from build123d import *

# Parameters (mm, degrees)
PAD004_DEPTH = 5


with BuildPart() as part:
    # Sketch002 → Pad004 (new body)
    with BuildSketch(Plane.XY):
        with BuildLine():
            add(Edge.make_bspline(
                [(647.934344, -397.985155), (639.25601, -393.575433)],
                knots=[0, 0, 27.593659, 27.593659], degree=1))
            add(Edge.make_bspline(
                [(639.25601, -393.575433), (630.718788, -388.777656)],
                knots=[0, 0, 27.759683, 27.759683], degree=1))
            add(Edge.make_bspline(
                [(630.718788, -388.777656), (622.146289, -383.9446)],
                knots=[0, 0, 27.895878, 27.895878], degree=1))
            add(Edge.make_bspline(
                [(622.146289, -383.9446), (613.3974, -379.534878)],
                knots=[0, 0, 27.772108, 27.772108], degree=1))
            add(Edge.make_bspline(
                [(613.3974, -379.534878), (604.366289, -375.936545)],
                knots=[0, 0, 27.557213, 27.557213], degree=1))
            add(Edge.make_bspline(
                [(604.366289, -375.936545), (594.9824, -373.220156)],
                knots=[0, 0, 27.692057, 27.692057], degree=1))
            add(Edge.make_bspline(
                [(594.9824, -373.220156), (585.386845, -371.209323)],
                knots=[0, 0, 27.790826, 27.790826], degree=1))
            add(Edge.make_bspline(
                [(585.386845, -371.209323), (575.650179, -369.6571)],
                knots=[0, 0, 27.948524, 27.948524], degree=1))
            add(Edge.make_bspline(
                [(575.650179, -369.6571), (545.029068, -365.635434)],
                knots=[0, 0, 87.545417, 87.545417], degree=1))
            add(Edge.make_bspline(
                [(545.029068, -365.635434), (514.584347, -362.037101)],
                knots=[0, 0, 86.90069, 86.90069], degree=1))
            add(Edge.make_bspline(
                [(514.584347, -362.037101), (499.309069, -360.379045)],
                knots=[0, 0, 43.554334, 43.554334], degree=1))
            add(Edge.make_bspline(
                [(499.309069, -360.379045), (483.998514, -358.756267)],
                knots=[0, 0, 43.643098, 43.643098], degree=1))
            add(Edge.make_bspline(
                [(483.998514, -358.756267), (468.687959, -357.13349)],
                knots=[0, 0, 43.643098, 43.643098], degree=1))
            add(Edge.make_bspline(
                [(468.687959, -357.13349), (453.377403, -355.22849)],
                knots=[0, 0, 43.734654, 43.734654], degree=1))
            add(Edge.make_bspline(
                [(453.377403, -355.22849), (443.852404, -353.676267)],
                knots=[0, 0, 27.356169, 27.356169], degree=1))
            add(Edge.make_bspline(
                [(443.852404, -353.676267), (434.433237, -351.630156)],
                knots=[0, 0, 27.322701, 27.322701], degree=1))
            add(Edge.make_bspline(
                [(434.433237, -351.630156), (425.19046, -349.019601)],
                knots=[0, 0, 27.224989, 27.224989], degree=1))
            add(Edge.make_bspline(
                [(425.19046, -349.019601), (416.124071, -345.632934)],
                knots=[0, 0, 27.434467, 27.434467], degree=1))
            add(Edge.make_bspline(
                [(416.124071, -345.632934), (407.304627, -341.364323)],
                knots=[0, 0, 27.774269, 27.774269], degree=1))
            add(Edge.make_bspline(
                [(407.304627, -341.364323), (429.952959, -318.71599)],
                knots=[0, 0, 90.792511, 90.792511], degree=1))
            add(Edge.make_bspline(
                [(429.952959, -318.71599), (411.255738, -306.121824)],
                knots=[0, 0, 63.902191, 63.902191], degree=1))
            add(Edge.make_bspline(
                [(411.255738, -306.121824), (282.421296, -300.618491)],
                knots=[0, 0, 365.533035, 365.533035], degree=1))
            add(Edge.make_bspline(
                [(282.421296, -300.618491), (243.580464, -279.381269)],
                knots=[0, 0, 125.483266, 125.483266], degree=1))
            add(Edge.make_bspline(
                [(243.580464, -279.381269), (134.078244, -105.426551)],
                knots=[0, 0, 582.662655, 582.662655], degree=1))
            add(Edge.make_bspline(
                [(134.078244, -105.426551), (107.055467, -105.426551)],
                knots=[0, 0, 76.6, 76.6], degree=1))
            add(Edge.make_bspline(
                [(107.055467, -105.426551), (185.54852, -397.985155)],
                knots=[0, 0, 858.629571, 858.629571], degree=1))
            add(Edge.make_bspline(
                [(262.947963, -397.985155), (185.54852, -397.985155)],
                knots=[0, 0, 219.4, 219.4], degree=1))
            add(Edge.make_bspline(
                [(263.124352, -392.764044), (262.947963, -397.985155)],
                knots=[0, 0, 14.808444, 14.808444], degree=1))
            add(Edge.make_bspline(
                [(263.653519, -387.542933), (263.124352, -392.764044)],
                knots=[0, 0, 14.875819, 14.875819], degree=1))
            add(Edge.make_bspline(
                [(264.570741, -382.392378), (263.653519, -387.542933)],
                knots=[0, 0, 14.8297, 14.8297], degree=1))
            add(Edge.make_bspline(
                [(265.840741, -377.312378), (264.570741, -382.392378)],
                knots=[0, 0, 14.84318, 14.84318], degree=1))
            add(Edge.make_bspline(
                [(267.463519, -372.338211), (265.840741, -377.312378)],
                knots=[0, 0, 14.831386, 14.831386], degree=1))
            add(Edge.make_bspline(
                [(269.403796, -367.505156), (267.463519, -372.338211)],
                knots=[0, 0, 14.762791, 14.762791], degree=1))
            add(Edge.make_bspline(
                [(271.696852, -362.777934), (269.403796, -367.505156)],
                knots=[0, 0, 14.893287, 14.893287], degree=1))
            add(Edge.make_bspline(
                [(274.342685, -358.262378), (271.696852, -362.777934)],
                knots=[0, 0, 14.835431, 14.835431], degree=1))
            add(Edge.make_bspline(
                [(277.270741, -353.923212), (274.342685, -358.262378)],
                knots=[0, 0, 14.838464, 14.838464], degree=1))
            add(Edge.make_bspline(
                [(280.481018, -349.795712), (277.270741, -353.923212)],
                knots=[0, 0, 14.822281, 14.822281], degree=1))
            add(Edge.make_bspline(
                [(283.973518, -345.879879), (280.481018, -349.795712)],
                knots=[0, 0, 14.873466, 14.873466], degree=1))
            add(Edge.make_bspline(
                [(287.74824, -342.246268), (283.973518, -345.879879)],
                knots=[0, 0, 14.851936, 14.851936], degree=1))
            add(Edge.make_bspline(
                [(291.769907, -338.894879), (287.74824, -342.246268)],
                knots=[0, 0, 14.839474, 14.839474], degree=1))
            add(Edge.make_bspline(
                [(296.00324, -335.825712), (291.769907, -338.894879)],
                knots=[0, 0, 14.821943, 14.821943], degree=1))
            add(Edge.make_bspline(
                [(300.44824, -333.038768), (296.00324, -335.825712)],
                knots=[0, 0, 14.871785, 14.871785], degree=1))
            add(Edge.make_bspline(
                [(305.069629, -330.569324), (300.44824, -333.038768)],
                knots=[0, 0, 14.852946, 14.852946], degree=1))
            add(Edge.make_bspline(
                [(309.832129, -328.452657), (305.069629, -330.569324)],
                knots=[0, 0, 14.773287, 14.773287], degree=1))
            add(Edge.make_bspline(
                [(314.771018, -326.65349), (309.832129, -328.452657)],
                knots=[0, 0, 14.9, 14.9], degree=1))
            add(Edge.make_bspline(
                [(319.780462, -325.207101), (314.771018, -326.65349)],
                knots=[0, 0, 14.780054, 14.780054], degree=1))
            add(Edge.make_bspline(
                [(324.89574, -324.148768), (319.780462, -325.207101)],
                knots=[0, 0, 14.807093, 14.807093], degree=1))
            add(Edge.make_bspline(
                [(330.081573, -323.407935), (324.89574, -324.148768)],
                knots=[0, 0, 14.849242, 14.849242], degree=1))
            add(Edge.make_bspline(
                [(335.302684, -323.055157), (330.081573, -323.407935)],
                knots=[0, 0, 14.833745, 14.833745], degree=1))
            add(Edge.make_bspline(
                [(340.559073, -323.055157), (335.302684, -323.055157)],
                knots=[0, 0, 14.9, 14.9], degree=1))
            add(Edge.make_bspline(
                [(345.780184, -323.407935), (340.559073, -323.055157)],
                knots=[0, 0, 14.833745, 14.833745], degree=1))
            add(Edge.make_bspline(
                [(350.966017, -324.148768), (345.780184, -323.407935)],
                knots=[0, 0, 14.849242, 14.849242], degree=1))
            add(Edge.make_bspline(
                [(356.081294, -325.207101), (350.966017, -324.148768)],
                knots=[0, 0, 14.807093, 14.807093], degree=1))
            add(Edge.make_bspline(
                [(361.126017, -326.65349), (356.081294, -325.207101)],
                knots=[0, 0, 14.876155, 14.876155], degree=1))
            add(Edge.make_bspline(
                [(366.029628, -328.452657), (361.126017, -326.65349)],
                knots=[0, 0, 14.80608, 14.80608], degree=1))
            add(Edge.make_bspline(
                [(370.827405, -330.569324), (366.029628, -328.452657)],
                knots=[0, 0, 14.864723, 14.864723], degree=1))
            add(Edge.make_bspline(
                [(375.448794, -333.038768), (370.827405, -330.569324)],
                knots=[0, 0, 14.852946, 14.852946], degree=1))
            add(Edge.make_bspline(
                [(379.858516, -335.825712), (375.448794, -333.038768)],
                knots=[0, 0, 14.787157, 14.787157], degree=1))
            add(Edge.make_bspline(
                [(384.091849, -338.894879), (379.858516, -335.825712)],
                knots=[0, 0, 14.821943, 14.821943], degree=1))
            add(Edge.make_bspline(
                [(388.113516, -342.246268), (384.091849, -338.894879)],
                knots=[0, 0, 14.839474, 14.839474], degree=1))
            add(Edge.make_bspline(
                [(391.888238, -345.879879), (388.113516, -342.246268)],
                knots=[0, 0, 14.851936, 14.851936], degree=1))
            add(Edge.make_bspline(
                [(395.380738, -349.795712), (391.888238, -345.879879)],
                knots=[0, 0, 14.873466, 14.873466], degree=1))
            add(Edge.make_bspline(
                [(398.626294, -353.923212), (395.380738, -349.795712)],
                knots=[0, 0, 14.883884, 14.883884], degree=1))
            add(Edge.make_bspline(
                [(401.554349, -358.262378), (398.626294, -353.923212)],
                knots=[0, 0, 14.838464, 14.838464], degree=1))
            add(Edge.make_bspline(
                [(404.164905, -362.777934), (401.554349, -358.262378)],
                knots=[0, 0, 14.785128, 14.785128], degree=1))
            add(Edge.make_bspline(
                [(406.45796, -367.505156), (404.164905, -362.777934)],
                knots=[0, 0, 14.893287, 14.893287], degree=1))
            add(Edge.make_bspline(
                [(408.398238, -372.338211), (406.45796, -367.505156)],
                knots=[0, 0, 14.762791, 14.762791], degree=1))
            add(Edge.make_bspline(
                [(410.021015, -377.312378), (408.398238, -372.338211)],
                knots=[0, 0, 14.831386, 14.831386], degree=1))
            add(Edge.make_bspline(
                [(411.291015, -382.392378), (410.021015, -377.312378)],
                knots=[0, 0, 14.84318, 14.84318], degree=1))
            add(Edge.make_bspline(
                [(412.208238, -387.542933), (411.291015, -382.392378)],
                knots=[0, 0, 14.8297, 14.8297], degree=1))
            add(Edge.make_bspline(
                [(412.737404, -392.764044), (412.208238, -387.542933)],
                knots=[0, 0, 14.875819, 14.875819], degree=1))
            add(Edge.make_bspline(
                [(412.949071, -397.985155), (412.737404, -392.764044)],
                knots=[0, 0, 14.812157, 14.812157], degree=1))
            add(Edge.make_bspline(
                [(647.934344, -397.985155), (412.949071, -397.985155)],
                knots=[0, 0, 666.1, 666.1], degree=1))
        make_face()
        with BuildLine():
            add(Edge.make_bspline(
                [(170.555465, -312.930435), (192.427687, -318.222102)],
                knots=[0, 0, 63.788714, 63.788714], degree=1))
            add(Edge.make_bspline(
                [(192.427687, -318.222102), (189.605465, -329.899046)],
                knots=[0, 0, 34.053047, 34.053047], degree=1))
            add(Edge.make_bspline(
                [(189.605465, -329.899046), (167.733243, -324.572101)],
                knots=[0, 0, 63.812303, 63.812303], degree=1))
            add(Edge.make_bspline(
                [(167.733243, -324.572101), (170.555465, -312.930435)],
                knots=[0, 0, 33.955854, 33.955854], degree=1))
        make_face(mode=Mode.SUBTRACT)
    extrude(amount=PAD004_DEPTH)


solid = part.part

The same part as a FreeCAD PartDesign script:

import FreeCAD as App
import Part
import Sketcher

doc = App.newDocument("Part")
body = doc.addObject("PartDesign::Body", "Body")

# Sketch on XY plane
sketch1 = doc.addObject("Sketcher::SketchObject", "Sketch")
body.addObject(sketch1)
sketch1.AttachmentSupport = (doc.XY_Plane, [""])
sketch1.MapMode = "FlatFace"
sketch1.addGeometry([
    Part.BSplineCurve([App.Vector(647.934344, -397.985155, 0), App.Vector(639.25601, -393.575433, 0)], [2, 2], [0, 27.593659], False, 1, [1, 1], False),  # 0
    Part.BSplineCurve([App.Vector(639.25601, -393.575433, 0), App.Vector(630.718788, -388.777656, 0)], [2, 2], [0, 27.759683], False, 1, [1, 1], False),  # 1
    Part.BSplineCurve([App.Vector(630.718788, -388.777656, 0), App.Vector(622.146289, -383.9446, 0)], [2, 2], [0, 27.895878], False, 1, [1, 1], False),  # 2
    Part.BSplineCurve([App.Vector(622.146289, -383.9446, 0), App.Vector(613.3974, -379.534878, 0)], [2, 2], [0, 27.772108], False, 1, [1, 1], False),  # 3
    Part.BSplineCurve([App.Vector(613.3974, -379.534878, 0), App.Vector(604.366289, -375.936545, 0)], [2, 2], [0, 27.557213], False, 1, [1, 1], False),  # 4
    Part.BSplineCurve([App.Vector(604.366289, -375.936545, 0), App.Vector(594.9824, -373.220156, 0)], [2, 2], [0, 27.692057], False, 1, [1, 1], False),  # 5
    Part.BSplineCurve([App.Vector(594.9824, -373.220156, 0), App.Vector(585.386845, -371.209323, 0)], [2, 2], [0, 27.790826], False, 1, [1, 1], False),  # 6
    Part.BSplineCurve([App.Vector(585.386845, -371.209323, 0), App.Vector(575.650179, -369.6571, 0)], [2, 2], [0, 27.948524], False, 1, [1, 1], False),  # 7
    Part.BSplineCurve([App.Vector(575.650179, -369.6571, 0), App.Vector(545.029068, -365.635434, 0)], [2, 2], [0, 87.545417], False, 1, [1, 1], False),  # 8
    Part.BSplineCurve([App.Vector(545.029068, -365.635434, 0), App.Vector(514.584347, -362.037101, 0)], [2, 2], [0, 86.90069], False, 1, [1, 1], False),  # 9
    Part.BSplineCurve([App.Vector(514.584347, -362.037101, 0), App.Vector(499.309069, -360.379045, 0)], [2, 2], [0, 43.554334], False, 1, [1, 1], False),  # 10
    Part.BSplineCurve([App.Vector(499.309069, -360.379045, 0), App.Vector(483.998514, -358.756267, 0)], [2, 2], [0, 43.643098], False, 1, [1, 1], False),  # 11
    Part.BSplineCurve([App.Vector(483.998514, -358.756267, 0), App.Vector(468.687959, -357.13349, 0)], [2, 2], [0, 43.643098], False, 1, [1, 1], False),  # 12
    Part.BSplineCurve([App.Vector(468.687959, -357.13349, 0), App.Vector(453.377403, -355.22849, 0)], [2, 2], [0, 43.734654], False, 1, [1, 1], False),  # 13
    Part.BSplineCurve([App.Vector(453.377403, -355.22849, 0), App.Vector(443.852404, -353.676267, 0)], [2, 2], [0, 27.356169], False, 1, [1, 1], False),  # 14
    Part.BSplineCurve([App.Vector(443.852404, -353.676267, 0), App.Vector(434.433237, -351.630156, 0)], [2, 2], [0, 27.322701], False, 1, [1, 1], False),  # 15
    Part.BSplineCurve([App.Vector(434.433237, -351.630156, 0), App.Vector(425.19046, -349.019601, 0)], [2, 2], [0, 27.224989], False, 1, [1, 1], False),  # 16
    Part.BSplineCurve([App.Vector(425.19046, -349.019601, 0), App.Vector(416.124071, -345.632934, 0)], [2, 2], [0, 27.434467], False, 1, [1, 1], False),  # 17
    Part.BSplineCurve([App.Vector(416.124071, -345.632934, 0), App.Vector(407.304627, -341.364323, 0)], [2, 2], [0, 27.774269], False, 1, [1, 1], False),  # 18
    Part.BSplineCurve([App.Vector(407.304627, -341.364323, 0), App.Vector(429.952959, -318.71599, 0)], [2, 2], [0, 90.792511], False, 1, [1, 1], False),  # 19
    Part.BSplineCurve([App.Vector(429.952959, -318.71599, 0), App.Vector(411.255738, -306.121824, 0)], [2, 2], [0, 63.902191], False, 1, [1, 1], False),  # 20
    Part.BSplineCurve([App.Vector(411.255738, -306.121824, 0), App.Vector(282.421296, -300.618491, 0)], [2, 2], [0, 365.533035], False, 1, [1, 1], False),  # 21
    Part.BSplineCurve([App.Vector(282.421296, -300.618491, 0), App.Vector(243.580464, -279.381269, 0)], [2, 2], [0, 125.483266], False, 1, [1, 1], False),  # 22
    Part.BSplineCurve([App.Vector(243.580464, -279.381269, 0), App.Vector(134.078244, -105.426551, 0)], [2, 2], [0, 582.662655], False, 1, [1, 1], False),  # 23
    Part.BSplineCurve([App.Vector(134.078244, -105.426551, 0), App.Vector(107.055467, -105.426551, 0)], [2, 2], [0, 76.6], False, 1, [1, 1], False),  # 24
    Part.BSplineCurve([App.Vector(107.055467, -105.426551, 0), App.Vector(185.54852, -397.985155, 0)], [2, 2], [0, 858.629571], False, 1, [1, 1], False),  # 25
    Part.BSplineCurve([App.Vector(262.947963, -397.985155, 0), App.Vector(185.54852, -397.985155, 0)], [2, 2], [0, 219.4], False, 1, [1, 1], False),  # 26
    Part.BSplineCurve([App.Vector(263.124352, -392.764044, 0), App.Vector(262.947963, -397.985155, 0)], [2, 2], [0, 14.808444], False, 1, [1, 1], False),  # 27
    Part.BSplineCurve([App.Vector(263.653519, -387.542933, 0), App.Vector(263.124352, -392.764044, 0)], [2, 2], [0, 14.875819], False, 1, [1, 1], False),  # 28
    Part.BSplineCurve([App.Vector(264.570741, -382.392378, 0), App.Vector(263.653519, -387.542933, 0)], [2, 2], [0, 14.8297], False, 1, [1, 1], False),  # 29
    Part.BSplineCurve([App.Vector(265.840741, -377.312378, 0), App.Vector(264.570741, -382.392378, 0)], [2, 2], [0, 14.84318], False, 1, [1, 1], False),  # 30
    Part.BSplineCurve([App.Vector(267.463519, -372.338211, 0), App.Vector(265.840741, -377.312378, 0)], [2, 2], [0, 14.831386], False, 1, [1, 1], False),  # 31
    Part.BSplineCurve([App.Vector(269.403796, -367.505156, 0), App.Vector(267.463519, -372.338211, 0)], [2, 2], [0, 14.762791], False, 1, [1, 1], False),  # 32
    Part.BSplineCurve([App.Vector(271.696852, -362.777934, 0), App.Vector(269.403796, -367.505156, 0)], [2, 2], [0, 14.893287], False, 1, [1, 1], False),  # 33
    Part.BSplineCurve([App.Vector(274.342685, -358.262378, 0), App.Vector(271.696852, -362.777934, 0)], [2, 2], [0, 14.835431], False, 1, [1, 1], False),  # 34
    Part.BSplineCurve([App.Vector(277.270741, -353.923212, 0), App.Vector(274.342685, -358.262378, 0)], [2, 2], [0, 14.838464], False, 1, [1, 1], False),  # 35
    Part.BSplineCurve([App.Vector(280.481018, -349.795712, 0), App.Vector(277.270741, -353.923212, 0)], [2, 2], [0, 14.822281], False, 1, [1, 1], False),  # 36
    Part.BSplineCurve([App.Vector(283.973518, -345.879879, 0), App.Vector(280.481018, -349.795712, 0)], [2, 2], [0, 14.873466], False, 1, [1, 1], False),  # 37
    Part.BSplineCurve([App.Vector(287.74824, -342.246268, 0), App.Vector(283.973518, -345.879879, 0)], [2, 2], [0, 14.851936], False, 1, [1, 1], False),  # 38
    Part.BSplineCurve([App.Vector(291.769907, -338.894879, 0), App.Vector(287.74824, -342.246268, 0)], [2, 2], [0, 14.839474], False, 1, [1, 1], False),  # 39
    Part.BSplineCurve([App.Vector(296.00324, -335.825712, 0), App.Vector(291.769907, -338.894879, 0)], [2, 2], [0, 14.821943], False, 1, [1, 1], False),  # 40
    Part.BSplineCurve([App.Vector(300.44824, -333.038768, 0), App.Vector(296.00324, -335.825712, 0)], [2, 2], [0, 14.871785], False, 1, [1, 1], False),  # 41
    Part.BSplineCurve([App.Vector(305.069629, -330.569324, 0), App.Vector(300.44824, -333.038768, 0)], [2, 2], [0, 14.852946], False, 1, [1, 1], False),  # 42
    Part.BSplineCurve([App.Vector(309.832129, -328.452657, 0), App.Vector(305.069629, -330.569324, 0)], [2, 2], [0, 14.773287], False, 1, [1, 1], False),  # 43
    Part.BSplineCurve([App.Vector(314.771018, -326.65349, 0), App.Vector(309.832129, -328.452657, 0)], [2, 2], [0, 14.9], False, 1, [1, 1], False),  # 44
    Part.BSplineCurve([App.Vector(319.780462, -325.207101, 0), App.Vector(314.771018, -326.65349, 0)], [2, 2], [0, 14.780054], False, 1, [1, 1], False),  # 45
    Part.BSplineCurve([App.Vector(324.89574, -324.148768, 0), App.Vector(319.780462, -325.207101, 0)], [2, 2], [0, 14.807093], False, 1, [1, 1], False),  # 46
    Part.BSplineCurve([App.Vector(330.081573, -323.407935, 0), App.Vector(324.89574, -324.148768, 0)], [2, 2], [0, 14.849242], False, 1, [1, 1], False),  # 47
    Part.BSplineCurve([App.Vector(335.302684, -323.055157, 0), App.Vector(330.081573, -323.407935, 0)], [2, 2], [0, 14.833745], False, 1, [1, 1], False),  # 48
    Part.BSplineCurve([App.Vector(340.559073, -323.055157, 0), App.Vector(335.302684, -323.055157, 0)], [2, 2], [0, 14.9], False, 1, [1, 1], False),  # 49
    Part.BSplineCurve([App.Vector(345.780184, -323.407935, 0), App.Vector(340.559073, -323.055157, 0)], [2, 2], [0, 14.833745], False, 1, [1, 1], False),  # 50
    Part.BSplineCurve([App.Vector(350.966017, -324.148768, 0), App.Vector(345.780184, -323.407935, 0)], [2, 2], [0, 14.849242], False, 1, [1, 1], False),  # 51
    Part.BSplineCurve([App.Vector(356.081294, -325.207101, 0), App.Vector(350.966017, -324.148768, 0)], [2, 2], [0, 14.807093], False, 1, [1, 1], False),  # 52
    Part.BSplineCurve([App.Vector(361.126017, -326.65349, 0), App.Vector(356.081294, -325.207101, 0)], [2, 2], [0, 14.876155], False, 1, [1, 1], False),  # 53
    Part.BSplineCurve([App.Vector(366.029628, -328.452657, 0), App.Vector(361.126017, -326.65349, 0)], [2, 2], [0, 14.80608], False, 1, [1, 1], False),  # 54
    Part.BSplineCurve([App.Vector(370.827405, -330.569324, 0), App.Vector(366.029628, -328.452657, 0)], [2, 2], [0, 14.864723], False, 1, [1, 1], False),  # 55
    Part.BSplineCurve([App.Vector(375.448794, -333.038768, 0), App.Vector(370.827405, -330.569324, 0)], [2, 2], [0, 14.852946], False, 1, [1, 1], False),  # 56
    Part.BSplineCurve([App.Vector(379.858516, -335.825712, 0), App.Vector(375.448794, -333.038768, 0)], [2, 2], [0, 14.787157], False, 1, [1, 1], False),  # 57
    Part.BSplineCurve([App.Vector(384.091849, -338.894879, 0), App.Vector(379.858516, -335.825712, 0)], [2, 2], [0, 14.821943], False, 1, [1, 1], False),  # 58
    Part.BSplineCurve([App.Vector(388.113516, -342.246268, 0), App.Vector(384.091849, -338.894879, 0)], [2, 2], [0, 14.839474], False, 1, [1, 1], False),  # 59
    Part.BSplineCurve([App.Vector(391.888238, -345.879879, 0), App.Vector(388.113516, -342.246268, 0)], [2, 2], [0, 14.851936], False, 1, [1, 1], False),  # 60
    Part.BSplineCurve([App.Vector(395.380738, -349.795712, 0), App.Vector(391.888238, -345.879879, 0)], [2, 2], [0, 14.873466], False, 1, [1, 1], False),  # 61
    Part.BSplineCurve([App.Vector(398.626294, -353.923212, 0), App.Vector(395.380738, -349.795712, 0)], [2, 2], [0, 14.883884], False, 1, [1, 1], False),  # 62
    Part.BSplineCurve([App.Vector(401.554349, -358.262378, 0), App.Vector(398.626294, -353.923212, 0)], [2, 2], [0, 14.838464], False, 1, [1, 1], False),  # 63
    Part.BSplineCurve([App.Vector(404.164905, -362.777934, 0), App.Vector(401.554349, -358.262378, 0)], [2, 2], [0, 14.785128], False, 1, [1, 1], False),  # 64
    Part.BSplineCurve([App.Vector(406.45796, -367.505156, 0), App.Vector(404.164905, -362.777934, 0)], [2, 2], [0, 14.893287], False, 1, [1, 1], False),  # 65
    Part.BSplineCurve([App.Vector(408.398238, -372.338211, 0), App.Vector(406.45796, -367.505156, 0)], [2, 2], [0, 14.762791], False, 1, [1, 1], False),  # 66
    Part.BSplineCurve([App.Vector(410.021015, -377.312378, 0), App.Vector(408.398238, -372.338211, 0)], [2, 2], [0, 14.831386], False, 1, [1, 1], False),  # 67
    Part.BSplineCurve([App.Vector(411.291015, -382.392378, 0), App.Vector(410.021015, -377.312378, 0)], [2, 2], [0, 14.84318], False, 1, [1, 1], False),  # 68
    Part.BSplineCurve([App.Vector(412.208238, -387.542933, 0), App.Vector(411.291015, -382.392378, 0)], [2, 2], [0, 14.8297], False, 1, [1, 1], False),  # 69
    Part.BSplineCurve([App.Vector(412.737404, -392.764044, 0), App.Vector(412.208238, -387.542933, 0)], [2, 2], [0, 14.875819], False, 1, [1, 1], False),  # 70
    Part.BSplineCurve([App.Vector(412.949071, -397.985155, 0), App.Vector(412.737404, -392.764044, 0)], [2, 2], [0, 14.812157], False, 1, [1, 1], False),  # 71
    Part.BSplineCurve([App.Vector(647.934344, -397.985155, 0), App.Vector(412.949071, -397.985155, 0)], [2, 2], [0, 666.1], False, 1, [1, 1], False),  # 72
    Part.BSplineCurve([App.Vector(167.733243, -324.572101, 0), App.Vector(170.555465, -312.930435, 0)], [2, 2], [0, 33.955854], False, 1, [1, 1], False),  # 73
    Part.BSplineCurve([App.Vector(170.555465, -312.930435, 0), App.Vector(192.427687, -318.222102, 0)], [2, 2], [0, 63.788714], False, 1, [1, 1], False),  # 74
    Part.BSplineCurve([App.Vector(192.427687, -318.222102, 0), App.Vector(189.605465, -329.899046, 0)], [2, 2], [0, 34.053047], False, 1, [1, 1], False),  # 75
    Part.BSplineCurve([App.Vector(189.605465, -329.899046, 0), App.Vector(167.733243, -324.572101, 0)], [2, 2], [0, 63.812303], False, 1, [1, 1], False),  # 76
], False)
sketch1.addConstraint([
    Sketcher.Constraint("Block", 0),
    Sketcher.Constraint("Block", 1),
    Sketcher.Constraint("Block", 2),
    Sketcher.Constraint("Block", 3),
    Sketcher.Constraint("Block", 4),
    Sketcher.Constraint("Block", 5),
    Sketcher.Constraint("Block", 6),
    Sketcher.Constraint("Block", 7),
    Sketcher.Constraint("Block", 8),
    Sketcher.Constraint("Block", 9),
    Sketcher.Constraint("Block", 10),
    Sketcher.Constraint("Block", 11),
    Sketcher.Constraint("Block", 12),
    Sketcher.Constraint("Block", 13),
    Sketcher.Constraint("Block", 14),
    Sketcher.Constraint("Block", 15),
    Sketcher.Constraint("Block", 16),
    Sketcher.Constraint("Block", 17),
    Sketcher.Constraint("Block", 18),
    Sketcher.Constraint("Block", 19),
    Sketcher.Constraint("Block", 20),
    Sketcher.Constraint("Block", 21),
    Sketcher.Constraint("Block", 22),
    Sketcher.Constraint("Block", 23),
    Sketcher.Constraint("Block", 24),
    Sketcher.Constraint("Block", 25),
    Sketcher.Constraint("Block", 26),
    Sketcher.Constraint("Block", 27),
    Sketcher.Constraint("Block", 28),
    Sketcher.Constraint("Block", 29),
    Sketcher.Constraint("Block", 30),
    Sketcher.Constraint("Block", 31),
    Sketcher.Constraint("Block", 32),
    Sketcher.Constraint("Block", 33),
    Sketcher.Constraint("Block", 34),
    Sketcher.Constraint("Block", 35),
    Sketcher.Constraint("Block", 36),
    Sketcher.Constraint("Block", 37),
    Sketcher.Constraint("Block", 38),
    Sketcher.Constraint("Block", 39),
    Sketcher.Constraint("Block", 40),
    Sketcher.Constraint("Block", 41),
    Sketcher.Constraint("Block", 42),
    Sketcher.Constraint("Block", 43),
    Sketcher.Constraint("Block", 44),
    Sketcher.Constraint("Block", 45),
    Sketcher.Constraint("Block", 46),
    Sketcher.Constraint("Block", 47),
    Sketcher.Constraint("Block", 48),
    Sketcher.Constraint("Block", 49),
    Sketcher.Constraint("Block", 50),
    Sketcher.Constraint("Block", 51),
    Sketcher.Constraint("Block", 52),
    Sketcher.Constraint("Block", 53),
    Sketcher.Constraint("Block", 54),
    Sketcher.Constraint("Block", 55),
    Sketcher.Constraint("Block", 56),
    Sketcher.Constraint("Block", 57),
    Sketcher.Constraint("Block", 58),
    Sketcher.Constraint("Block", 59),
    Sketcher.Constraint("Block", 60),
    Sketcher.Constraint("Block", 61),
    Sketcher.Constraint("Block", 62),
    Sketcher.Constraint("Block", 63),
    Sketcher.Constraint("Block", 64),
    Sketcher.Constraint("Block", 65),
    Sketcher.Constraint("Block", 66),
    Sketcher.Constraint("Block", 67),
    Sketcher.Constraint("Block", 68),
    Sketcher.Constraint("Block", 69),
    Sketcher.Constraint("Block", 70),
    Sketcher.Constraint("Block", 71),
    Sketcher.Constraint("Block", 72),
    Sketcher.Constraint("Block", 73),
    Sketcher.Constraint("Block", 74),
    Sketcher.Constraint("Block", 75),
    Sketcher.Constraint("Block", 76),
])
pad1 = doc.addObject("PartDesign::Pad", "Pad")
body.addObject(pad1)
pad1.Profile = sketch1
pad1.Length = 5

doc.recompute()
